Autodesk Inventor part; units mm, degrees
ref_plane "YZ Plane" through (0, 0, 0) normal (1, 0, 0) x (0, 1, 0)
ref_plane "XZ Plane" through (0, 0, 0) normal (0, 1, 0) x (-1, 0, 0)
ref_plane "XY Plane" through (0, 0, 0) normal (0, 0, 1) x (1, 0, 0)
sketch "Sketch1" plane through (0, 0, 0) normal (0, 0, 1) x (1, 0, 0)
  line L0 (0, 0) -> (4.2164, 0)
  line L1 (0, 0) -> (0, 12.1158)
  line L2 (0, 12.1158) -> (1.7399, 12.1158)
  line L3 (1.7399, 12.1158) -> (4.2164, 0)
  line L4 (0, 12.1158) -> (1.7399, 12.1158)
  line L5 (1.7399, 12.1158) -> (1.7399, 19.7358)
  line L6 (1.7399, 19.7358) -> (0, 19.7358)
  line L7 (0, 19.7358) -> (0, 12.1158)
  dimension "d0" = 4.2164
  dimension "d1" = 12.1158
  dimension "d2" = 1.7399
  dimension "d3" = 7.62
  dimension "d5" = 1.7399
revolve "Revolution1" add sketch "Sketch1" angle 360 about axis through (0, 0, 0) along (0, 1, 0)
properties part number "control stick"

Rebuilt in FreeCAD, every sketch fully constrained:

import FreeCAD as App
import Part
import Sketcher
Q = App.Units.Quantity


def add_polygon(sketch, points):
    """Adds a closed chain of lines whose ends are joined by coincident constraints."""
    first, n = sketch.GeometryCount, len(points)
    for a, b in zip(points, points[1:] + points[:1]):
        sketch.addGeometry(Part.LineSegment(App.Vector(*a, 0), App.Vector(*b, 0)), False)
    for i in range(n):
        sketch.addConstraint(Sketcher.Constraint("Coincident", first + i, 2, first + (i + 1) % n, 1))

doc = App.newDocument("Part")
body = doc.addObject("PartDesign::Body", "Body")

# Sketch on XY plane
sketch1 = body.newObject("Sketcher::SketchObject", "Sketch")
sketch1.AttachmentSupport = (doc.getObject("XY_Plane"), [""])
sketch1.MapMode = "FlatFace"
add_polygon(sketch1, [(0, 0), (4.2164, 0), (1.7399, 12.1158), (1.7399, 19.7358), (0, 19.7358)])  # lines 0-4
sketch1.addConstraint(Sketcher.Constraint("Horizontal", 0))
sketch1.addConstraint(Sketcher.Constraint("Vertical", 2))
sketch1.addConstraint(Sketcher.Constraint("Horizontal", 3))
sketch1.addConstraint(Sketcher.Constraint("Vertical", 4))
sketch1.addConstraint(Sketcher.Constraint("Coincident", 4, 2, -1, 1))
sketch1.addConstraint(Sketcher.Constraint("DistanceY", 2, 1, 2, 2, Q("0.3 in")))
sketch1.addConstraint(Sketcher.Constraint("DistanceX", 0, 1, 0, 2, Q("0.166 in")))
sketch1.addConstraint(Sketcher.Constraint("DistanceX", 3, 2, 3, 1, Q("0.0685 in")))
sketch1.addConstraint(Sketcher.Constraint("DistanceY", -1, 1, 1, 2, Q("0.477 in")))
revolution = body.newObject("PartDesign::Revolution", "Revolution")
revolution.Profile = sketch1
revolution.ReferenceAxis = (sketch1, ["V_Axis"])
revolution.Angle = 360

doc.recompute()
